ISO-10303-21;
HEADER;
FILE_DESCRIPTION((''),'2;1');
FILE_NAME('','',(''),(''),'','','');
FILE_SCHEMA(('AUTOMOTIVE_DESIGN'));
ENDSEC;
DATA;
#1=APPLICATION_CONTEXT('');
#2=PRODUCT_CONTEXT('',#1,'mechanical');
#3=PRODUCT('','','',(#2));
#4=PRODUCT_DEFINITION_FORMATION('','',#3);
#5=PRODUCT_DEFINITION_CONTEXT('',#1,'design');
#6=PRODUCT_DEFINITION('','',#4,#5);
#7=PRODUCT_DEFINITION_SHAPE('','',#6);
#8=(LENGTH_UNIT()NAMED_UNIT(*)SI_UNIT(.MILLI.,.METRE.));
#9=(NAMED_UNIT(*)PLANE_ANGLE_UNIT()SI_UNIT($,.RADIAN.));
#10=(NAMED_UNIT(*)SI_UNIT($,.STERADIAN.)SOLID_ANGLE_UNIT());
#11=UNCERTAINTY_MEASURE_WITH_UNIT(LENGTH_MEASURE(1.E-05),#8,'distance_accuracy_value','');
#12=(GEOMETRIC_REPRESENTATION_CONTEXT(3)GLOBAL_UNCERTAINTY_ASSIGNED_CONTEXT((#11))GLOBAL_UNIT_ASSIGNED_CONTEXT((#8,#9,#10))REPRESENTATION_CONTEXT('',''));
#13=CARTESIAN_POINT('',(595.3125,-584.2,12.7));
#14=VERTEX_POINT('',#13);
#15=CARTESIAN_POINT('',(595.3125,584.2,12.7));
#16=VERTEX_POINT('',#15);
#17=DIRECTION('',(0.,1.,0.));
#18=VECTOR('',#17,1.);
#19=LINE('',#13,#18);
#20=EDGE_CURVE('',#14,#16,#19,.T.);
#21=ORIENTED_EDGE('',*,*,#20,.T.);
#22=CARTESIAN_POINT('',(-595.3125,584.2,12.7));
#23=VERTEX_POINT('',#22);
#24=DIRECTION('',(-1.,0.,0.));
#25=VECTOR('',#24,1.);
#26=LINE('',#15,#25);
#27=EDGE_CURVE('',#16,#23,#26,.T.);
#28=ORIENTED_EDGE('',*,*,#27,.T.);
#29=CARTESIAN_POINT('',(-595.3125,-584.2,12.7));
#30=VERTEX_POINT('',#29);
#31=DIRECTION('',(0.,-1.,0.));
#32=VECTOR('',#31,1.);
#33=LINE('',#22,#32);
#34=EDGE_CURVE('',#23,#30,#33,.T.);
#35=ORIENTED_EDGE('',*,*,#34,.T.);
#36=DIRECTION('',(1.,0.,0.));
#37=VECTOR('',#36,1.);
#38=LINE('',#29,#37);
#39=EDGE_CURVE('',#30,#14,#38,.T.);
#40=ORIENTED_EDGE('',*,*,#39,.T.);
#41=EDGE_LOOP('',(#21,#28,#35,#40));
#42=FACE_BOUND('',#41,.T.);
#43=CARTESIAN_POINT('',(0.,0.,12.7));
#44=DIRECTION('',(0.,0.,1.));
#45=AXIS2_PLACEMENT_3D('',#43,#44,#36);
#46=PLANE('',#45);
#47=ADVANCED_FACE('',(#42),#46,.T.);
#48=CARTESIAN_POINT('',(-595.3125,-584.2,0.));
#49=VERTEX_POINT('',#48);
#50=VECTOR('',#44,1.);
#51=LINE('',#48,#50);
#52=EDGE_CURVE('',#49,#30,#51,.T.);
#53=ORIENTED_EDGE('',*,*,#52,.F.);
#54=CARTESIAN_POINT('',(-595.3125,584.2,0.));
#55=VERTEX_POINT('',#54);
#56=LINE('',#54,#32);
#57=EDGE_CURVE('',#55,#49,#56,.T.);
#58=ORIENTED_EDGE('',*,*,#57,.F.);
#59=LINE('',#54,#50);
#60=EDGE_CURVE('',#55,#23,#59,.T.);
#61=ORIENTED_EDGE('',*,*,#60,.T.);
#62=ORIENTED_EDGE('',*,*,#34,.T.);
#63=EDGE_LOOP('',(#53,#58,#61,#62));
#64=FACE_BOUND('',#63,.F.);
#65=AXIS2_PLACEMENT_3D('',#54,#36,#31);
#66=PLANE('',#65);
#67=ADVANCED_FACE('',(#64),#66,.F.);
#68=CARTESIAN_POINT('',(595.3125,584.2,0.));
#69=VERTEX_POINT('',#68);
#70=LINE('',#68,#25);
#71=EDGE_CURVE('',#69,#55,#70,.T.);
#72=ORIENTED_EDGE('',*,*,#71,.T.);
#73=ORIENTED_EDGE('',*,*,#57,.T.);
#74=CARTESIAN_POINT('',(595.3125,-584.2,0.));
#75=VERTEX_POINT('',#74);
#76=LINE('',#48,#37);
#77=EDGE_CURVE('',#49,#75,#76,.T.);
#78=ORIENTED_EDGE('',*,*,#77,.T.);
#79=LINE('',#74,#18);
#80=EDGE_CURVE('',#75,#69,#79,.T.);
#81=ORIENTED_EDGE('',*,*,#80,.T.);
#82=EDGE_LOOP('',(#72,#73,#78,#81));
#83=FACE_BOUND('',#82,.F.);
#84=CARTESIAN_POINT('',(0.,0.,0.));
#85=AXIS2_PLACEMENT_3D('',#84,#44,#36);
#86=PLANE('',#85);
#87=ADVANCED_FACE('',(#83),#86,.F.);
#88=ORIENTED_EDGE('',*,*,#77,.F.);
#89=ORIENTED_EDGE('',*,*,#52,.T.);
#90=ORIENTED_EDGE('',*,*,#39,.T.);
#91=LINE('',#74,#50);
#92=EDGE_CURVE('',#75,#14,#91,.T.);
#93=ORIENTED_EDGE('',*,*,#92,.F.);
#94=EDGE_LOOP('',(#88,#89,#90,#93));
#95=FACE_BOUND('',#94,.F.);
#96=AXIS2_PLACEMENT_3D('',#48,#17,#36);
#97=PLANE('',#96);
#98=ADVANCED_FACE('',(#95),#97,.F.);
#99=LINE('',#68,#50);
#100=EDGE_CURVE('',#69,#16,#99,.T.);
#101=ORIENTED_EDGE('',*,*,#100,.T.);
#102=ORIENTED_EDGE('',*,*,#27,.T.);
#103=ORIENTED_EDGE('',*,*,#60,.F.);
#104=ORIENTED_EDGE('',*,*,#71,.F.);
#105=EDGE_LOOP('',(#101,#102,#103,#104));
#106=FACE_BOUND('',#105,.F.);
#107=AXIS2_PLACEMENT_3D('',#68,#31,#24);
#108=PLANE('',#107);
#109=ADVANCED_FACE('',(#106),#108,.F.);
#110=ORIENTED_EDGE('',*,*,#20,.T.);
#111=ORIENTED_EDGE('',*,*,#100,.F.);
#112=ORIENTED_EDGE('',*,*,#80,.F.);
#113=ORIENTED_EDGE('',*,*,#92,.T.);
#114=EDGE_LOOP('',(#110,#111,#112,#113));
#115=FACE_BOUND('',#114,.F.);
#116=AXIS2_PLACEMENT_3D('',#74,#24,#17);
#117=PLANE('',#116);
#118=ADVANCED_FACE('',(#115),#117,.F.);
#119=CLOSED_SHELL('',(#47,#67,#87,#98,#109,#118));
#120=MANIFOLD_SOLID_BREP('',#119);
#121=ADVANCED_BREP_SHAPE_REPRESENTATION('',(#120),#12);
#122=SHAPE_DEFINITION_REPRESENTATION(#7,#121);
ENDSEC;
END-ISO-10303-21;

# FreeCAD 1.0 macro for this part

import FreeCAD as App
import Part
import Sketcher

V = App.Vector
Q = App.Units.Quantity


def add_polygon(sketch, points):
    """Adds a closed chain of lines whose ends are joined by coincident constraints."""
    first, n = sketch.GeometryCount, len(points)
    for a, b in zip(points, points[1:] + points[:1]):
        sketch.addGeometry(Part.LineSegment(App.Vector(*a, 0), App.Vector(*b, 0)), False)
    for i in range(n):
        sketch.addConstraint(Sketcher.Constraint("Coincident", first + i, 2, first + (i + 1) % n, 1))

doc = App.newDocument("Part")
body = doc.addObject("PartDesign::Body", "Body")

# Sketch on XY plane
sketch1 = body.newObject("Sketcher::SketchObject", "Sketch")
sketch1.AttachmentSupport = (doc.getObject("XY_Plane"), [""])
sketch1.MapMode = "FlatFace"
add_polygon(sketch1, [(-595, 584), (-595, -584), (595, -584), (595, 584)])  # lines 0-3
sketch1.addConstraint([
    Sketcher.Constraint("Vertical", 0),
    Sketcher.Constraint("Horizontal", 1),
    Sketcher.Constraint("Vertical", 2),
    Sketcher.Constraint("Horizontal", 3),
    Sketcher.Constraint("Symmetric", 0, 2, 2, 2, -1, 1),
    Sketcher.Constraint("DistanceY", 0, 2, 0, 1, Q("46 in")),
    Sketcher.Constraint("DistanceX", 1, 1, 1, 2, Q("46.875 in")),
])
pad1 = body.newObject("PartDesign::Pad", "Pad")
pad1.Profile = sketch1
pad1.Length = Q("0.5 in")

doc.recompute()
